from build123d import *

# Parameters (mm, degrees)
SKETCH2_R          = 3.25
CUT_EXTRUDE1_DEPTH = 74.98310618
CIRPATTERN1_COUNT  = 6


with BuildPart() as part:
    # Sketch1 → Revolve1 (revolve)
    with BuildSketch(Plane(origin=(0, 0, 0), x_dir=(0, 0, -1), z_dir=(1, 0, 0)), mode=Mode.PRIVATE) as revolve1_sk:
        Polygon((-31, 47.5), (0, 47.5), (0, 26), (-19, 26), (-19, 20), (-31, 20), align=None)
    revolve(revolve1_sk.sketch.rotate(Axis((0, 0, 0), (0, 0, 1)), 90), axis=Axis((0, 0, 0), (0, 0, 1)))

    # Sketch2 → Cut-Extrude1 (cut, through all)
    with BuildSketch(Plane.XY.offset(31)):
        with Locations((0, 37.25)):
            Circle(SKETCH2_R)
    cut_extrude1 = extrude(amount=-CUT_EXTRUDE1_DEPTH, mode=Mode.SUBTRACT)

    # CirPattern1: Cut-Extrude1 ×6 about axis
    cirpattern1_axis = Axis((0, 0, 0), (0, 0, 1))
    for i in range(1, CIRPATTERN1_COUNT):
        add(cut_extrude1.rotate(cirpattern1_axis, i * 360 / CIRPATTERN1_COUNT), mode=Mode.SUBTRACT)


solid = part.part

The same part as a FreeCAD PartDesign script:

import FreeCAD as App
import Part
import Sketcher
from FreeCAD import Vector

doc = App.newDocument("Part")
body = doc.addObject("PartDesign::Body", "Body")

sketch1 = body.newObject("Sketcher::SketchObject", "Sketch")
sketch1.AttachmentSupport = (doc.getObject("YZ_Plane"), [""])
sketch1.MapMode = "FlatFace"
sketch1.addGeometry(Part.LineSegment(Vector(48, 0, 0), Vector(48, 31, 0)), False)
sketch1.addGeometry(Part.LineSegment(Vector(48, 31, 0), Vector(20, 31, 0)), False)
sketch1.addGeometry(Part.LineSegment(Vector(20, 31, 0), Vector(20, 19, 0)), False)
sketch1.addGeometry(Part.LineSegment(Vector(20, 19, 0), Vector(26, 19, 0)), False)
sketch1.addGeometry(Part.LineSegment(Vector(26, 19, 0), Vector(26, 0, 0)), False)
sketch1.addGeometry(Part.LineSegment(Vector(26, 0, 0), Vector(48, 0, 0)), False)
sketch1.addConstraint(Sketcher.Constraint("Coincident", 0, 2, 1, 1))
sketch1.addConstraint(Sketcher.Constraint("Coincident", 1, 2, 2, 1))
sketch1.addConstraint(Sketcher.Constraint("Coincident", 2, 2, 3, 1))
sketch1.addConstraint(Sketcher.Constraint("Coincident", 3, 2, 4, 1))
sketch1.addConstraint(Sketcher.Constraint("Coincident", 4, 2, 5, 1))
sketch1.addConstraint(Sketcher.Constraint("Coincident", 5, 2, 0, 1))
sketch1.addConstraint(Sketcher.Constraint("Vertical", 0))
sketch1.addConstraint(Sketcher.Constraint("Horizontal", 1))
sketch1.addConstraint(Sketcher.Constraint("Vertical", 2))
sketch1.addConstraint(Sketcher.Constraint("Horizontal", 3))
sketch1.addConstraint(Sketcher.Constraint("Vertical", 4))
sketch1.addConstraint(Sketcher.Constraint("Horizontal", 5))
sketch1.addConstraint(Sketcher.Constraint("PointOnObject", 4, 2, -1))
sketch1.addConstraint(Sketcher.Constraint("DistanceX", 3, 1, 3, 2, 6.0))
sketch1.addConstraint(Sketcher.Constraint("DistanceY", 0, 1, 0, 2, 31.0))
sketch1.addConstraint(Sketcher.Constraint("DistanceY", 2, 2, 2, 1, 12.0))
sketch1.addConstraint(Sketcher.Constraint("DistanceX", 1, 2, 1, 1, 27.5))
sketch1.addConstraint(Sketcher.Constraint("DistanceX", -1, 1, 1, 2, 20.0))
revolution = body.newObject("PartDesign::Revolution", "Revolution")
revolution.Profile = sketch1
revolution.ReferenceAxis = (sketch1, ["V_Axis"])
revolution.Angle = 360

sketch2 = body.newObject("Sketcher::SketchObject", "Sketch001")
sketch2.AttachmentSupport = (doc.getObject("XY_Plane"), [""])
sketch2.MapMode = "FlatFace"
sketch2.AttachmentOffset = App.Placement(Vector(0, 0, 31), App.Rotation())
sketch2.addGeometry(Part.Circle(Vector(0, 37.2, 0), Vector(0, 0, 1), 3.2), False)
sketch2.addConstraint(Sketcher.Constraint("PointOnObject", 0, 3, -2))
sketch2.addConstraint(Sketcher.Constraint("Diameter", 0, 6.5))
sketch2.addConstraint(Sketcher.Constraint("DistanceY", -1, 1, 0, 3, 37.25))
pocket1 = body.newObject("PartDesign::Pocket", "Pocket")
pocket1.Profile = sketch2
pocket1.Type = "ThroughAll"
doc.recompute()

polarpattern = body.newObject("PartDesign::PolarPattern", "PolarPattern")
polarpattern.Originals = [pocket1]
polarpattern.Axis = (doc.getObject("Z_Axis"), [""])
polarpattern.Angle = 360
polarpattern.Occurrences = 6
body.Tip = polarpattern

doc.recompute()
